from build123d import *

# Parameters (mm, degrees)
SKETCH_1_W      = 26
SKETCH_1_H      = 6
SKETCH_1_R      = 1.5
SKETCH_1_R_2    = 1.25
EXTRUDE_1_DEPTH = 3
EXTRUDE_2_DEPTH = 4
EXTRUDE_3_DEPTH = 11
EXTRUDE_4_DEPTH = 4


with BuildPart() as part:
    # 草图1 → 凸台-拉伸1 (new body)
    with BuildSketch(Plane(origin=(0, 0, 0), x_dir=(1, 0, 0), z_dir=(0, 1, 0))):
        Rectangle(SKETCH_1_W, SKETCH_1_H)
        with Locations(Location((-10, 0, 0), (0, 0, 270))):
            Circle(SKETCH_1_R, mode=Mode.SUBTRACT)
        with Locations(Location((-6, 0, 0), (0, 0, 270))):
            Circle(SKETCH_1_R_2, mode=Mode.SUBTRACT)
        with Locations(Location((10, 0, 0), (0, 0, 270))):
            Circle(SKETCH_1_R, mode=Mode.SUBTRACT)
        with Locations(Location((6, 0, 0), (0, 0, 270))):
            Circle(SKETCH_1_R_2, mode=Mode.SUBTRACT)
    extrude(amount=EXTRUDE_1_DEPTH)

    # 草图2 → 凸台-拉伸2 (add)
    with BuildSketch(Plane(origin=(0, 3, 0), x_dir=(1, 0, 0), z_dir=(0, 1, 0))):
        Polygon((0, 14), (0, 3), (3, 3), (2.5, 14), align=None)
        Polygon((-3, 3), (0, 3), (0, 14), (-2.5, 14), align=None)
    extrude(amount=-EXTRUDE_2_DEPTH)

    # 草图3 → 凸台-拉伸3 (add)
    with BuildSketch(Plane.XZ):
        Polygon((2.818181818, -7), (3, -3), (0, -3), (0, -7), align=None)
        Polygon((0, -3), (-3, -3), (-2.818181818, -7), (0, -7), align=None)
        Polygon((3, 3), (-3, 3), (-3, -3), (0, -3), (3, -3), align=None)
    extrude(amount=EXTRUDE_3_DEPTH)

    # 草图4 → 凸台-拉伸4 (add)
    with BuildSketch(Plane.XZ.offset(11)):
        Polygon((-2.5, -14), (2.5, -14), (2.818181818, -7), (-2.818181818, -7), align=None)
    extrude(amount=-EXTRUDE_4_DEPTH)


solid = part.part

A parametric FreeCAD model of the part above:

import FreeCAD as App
import Part
import Sketcher

doc = App.newDocument("Part")
body = doc.addObject("PartDesign::Body", "Body")

sketch1 = body.newObject("Sketcher::SketchObject", "Sketch")
sketch1.AttachmentSupport = (doc.getObject("XZ_Plane"), [""])
sketch1.MapMode = "FlatFace"
sketch1.addGeometry(Part.LineSegment(App.Vector(-13, -3, 0), App.Vector(-13, 3, 0)), False)
sketch1.addGeometry(Part.LineSegment(App.Vector(-13, 3, 0), App.Vector(13, 3, 0)), False)
sketch1.addGeometry(Part.LineSegment(App.Vector(13, 3, 0), App.Vector(13, -3, 0)), False)
sketch1.addGeometry(Part.LineSegment(App.Vector(13, -3, 0), App.Vector(-13, -3, 0)), False)
sketch1.addGeometry(Part.Circle(App.Vector(-10, 0, 0), App.Vector(0, 0, 1), 1.5), False)
sketch1.addGeometry(Part.Circle(App.Vector(-6, 0, 0), App.Vector(0, 0, 1), 1.2), False)
sketch1.addGeometry(Part.Circle(App.Vector(6, 0, 0), App.Vector(0, 0, 1), 1.2), False)
sketch1.addGeometry(Part.Circle(App.Vector(10, 0, 0), App.Vector(0, 0, 1), 1.5), False)
sketch1.addConstraint(Sketcher.Constraint("Coincident", 0, 2, 1, 1))
sketch1.addConstraint(Sketcher.Constraint("Coincident", 1, 2, 2, 1))
sketch1.addConstraint(Sketcher.Constraint("Coincident", 2, 2, 3, 1))
sketch1.addConstraint(Sketcher.Constraint("Coincident", 3, 2, 0, 1))
sketch1.addConstraint(Sketcher.Constraint("Vertical", 0))
sketch1.addConstraint(Sketcher.Constraint("Horizontal", 1))
sketch1.addConstraint(Sketcher.Constraint("Vertical", 2))
sketch1.addConstraint(Sketcher.Constraint("Horizontal", 3))
sketch1.addConstraint(Sketcher.Constraint("Equal", 5, 6))
sketch1.addConstraint(Sketcher.Constraint("Equal", 4, 7))
sketch1.addConstraint(Sketcher.Constraint("Symmetric", 5, 3, 6, 3, -1, 1))
sketch1.addConstraint(Sketcher.Constraint("Symmetric", 4, 3, 7, 3, -1, 1))
sketch1.addConstraint(Sketcher.Constraint("Symmetric", 0, 2, 2, 2, -1, 1))
sketch1.addConstraint(Sketcher.Constraint("PointOnObject", 4, 3, -1))
sketch1.addConstraint(Sketcher.Constraint("PointOnObject", 5, 3, -1))
sketch1.addConstraint(Sketcher.Constraint("Diameter", 4, 3.0))
sketch1.addConstraint(Sketcher.Constraint("Diameter", 5, 2.5))
sketch1.addConstraint(Sketcher.Constraint("DistanceX", 1, 1, 1, 2, 26.0))
sketch1.addConstraint(Sketcher.Constraint("DistanceY", 0, 1, 0, 2, 6.0))
sketch1.addConstraint(Sketcher.Constraint("DistanceX", 4, 3, -1, 1, 10.0))
sketch1.addConstraint(Sketcher.Constraint("DistanceX", 5, 3, -1, 1, 6.0))
pad1 = body.newObject("PartDesign::Pad", "Pad")
pad1.Profile = sketch1
pad1.Length = 3
pad1.Reversed = True

sketch2 = body.newObject("Sketcher::SketchObject", "Sketch001")
sketch2.AttachmentSupport = (doc.getObject("XZ_Plane"), [""])
sketch2.MapMode = "FlatFace"
sketch2.AttachmentOffset = App.Placement(App.Vector(0, 0, -3), App.Rotation())
sketch2.addGeometry(Part.LineSegment(App.Vector(3, -3, 0), App.Vector(2, -14, 0)), False)
sketch2.addGeometry(Part.LineSegment(App.Vector(2, -14, 0), App.Vector(-2, -14, 0)), False)
sketch2.addGeometry(Part.LineSegment(App.Vector(-2, -14, 0), App.Vector(-3, -3, 0)), False)
sketch2.addGeometry(Part.LineSegment(App.Vector(-3, -3, 0), App.Vector(3, -3, 0)), False)
sketch2.addConstraint(Sketcher.Constraint("Coincident", 0, 2, 1, 1))
sketch2.addConstraint(Sketcher.Constraint("Coincident", 1, 2, 2, 1))
sketch2.addConstraint(Sketcher.Constraint("Coincident", 2, 2, 3, 1))
sketch2.addConstraint(Sketcher.Constraint("Coincident", 3, 2, 0, 1))
sketch2.addConstraint(Sketcher.Constraint("Horizontal", 1))
sketch2.addConstraint(Sketcher.Constraint("Horizontal", 3))
sketch2.addConstraint(Sketcher.Constraint("Equal", 0, 2))
sketch2.addConstraint(Sketcher.Constraint("DistanceX", 1, 2, 1, 1, 5.0))
sketch2.addConstraint(Sketcher.Constraint("DistanceX", 3, 1, 3, 2, 6.0))
sketch2.addConstraint(Sketcher.Constraint("DistanceY", 0, 2, -1, 1, 14.0))
sketch2.addConstraint(Sketcher.Constraint("DistanceX", 2, 2, -1, 1, 3.0))
sketch2.addConstraint(Sketcher.Constraint("DistanceY", 2, 2, -1, 1, 3.0))
pad2 = body.newObject("PartDesign::Pad", "Pad001")
pad2.Profile = sketch2
pad2.Length = 4

sketch3 = body.newObject("Sketcher::SketchObject", "Sketch002")
sketch3.AttachmentSupport = (doc.getObject("XZ_Plane"), [""])
sketch3.MapMode = "FlatFace"
sketch3.addGeometry(Part.LineSegment(App.Vector(2.8, -7, 0), App.Vector(3, -3, 0)), False)
sketch3.addGeometry(Part.LineSegment(App.Vector(3, -3, 0), App.Vector(3, 3, 0)), False)
sketch3.addGeometry(Part.LineSegment(App.Vector(3, 3, 0), App.Vector(-3, 3, 0)), False)
sketch3.addGeometry(Part.LineSegment(App.Vector(-3, 3, 0), App.Vector(-3, -3, 0)), False)
sketch3.addGeometry(Part.LineSegment(App.Vector(-3, -3, 0), App.Vector(-2.8, -7, 0)), False)
sketch3.addGeometry(Part.LineSegment(App.Vector(-2.8, -7, 0), App.Vector(2.8, -7, 0)), False)
sketch3.addConstraint(Sketcher.Constraint("Coincident", 0, 2, 1, 1))
sketch3.addConstraint(Sketcher.Constraint("Coincident", 1, 2, 2, 1))
sketch3.addConstraint(Sketcher.Constraint("Coincident", 2, 2, 3, 1))
sketch3.addConstraint(Sketcher.Constraint("Coincident", 3, 2, 4, 1))
sketch3.addConstraint(Sketcher.Constraint("Coincident", 4, 2, 5, 1))
sketch3.addConstraint(Sketcher.Constraint("Coincident", 5, 2, 0, 1))
sketch3.addConstraint(Sketcher.Constraint("Vertical", 1))
sketch3.addConstraint(Sketcher.Constraint("Horizontal", 2))
sketch3.addConstraint(Sketcher.Constraint("Vertical", 3))
sketch3.addConstraint(Sketcher.Constraint("Horizontal", 5))
sketch3.addConstraint(Sketcher.Constraint("Symmetric", 0, 2, 2, 2, -1, 1))
sketch3.addConstraint(Sketcher.Constraint("Horizontal", 0, 2, 3, 2))
sketch3.addConstraint(Sketcher.Constraint("Equal", 2, 1))
sketch3.addConstraint(Sketcher.Constraint("Equal", 0, 4))
sketch3.addConstraint(Sketcher.Constraint("DistanceX", 2, 2, 2, 1, 6.0))
sketch3.addConstraint(Sketcher.Constraint("DistanceY", 4, 2, -1, 1, 7.0))
sketch3.addConstraint(Sketcher.Constraint("Distance", 0, 4.00413))
pad3 = body.newObject("PartDesign::Pad", "Pad002")
pad3.Profile = sketch3
pad3.Length = 11

sketch4 = body.newObject("Sketcher::SketchObject", "Sketch003")
sketch4.AttachmentSupport = (doc.getObject("XZ_Plane"), [""])
sketch4.MapMode = "FlatFace"
sketch4.AttachmentOffset = App.Placement(App.Vector(0, 0, 11), App.Rotation())
sketch4.addGeometry(Part.LineSegment(App.Vector(-2, -14, 0), App.Vector(2, -14, 0)), False)
sketch4.addGeometry(Part.LineSegment(App.Vector(2, -14, 0), App.Vector(3, -7, 0)), False)
sketch4.addGeometry(Part.LineSegment(App.Vector(3, -7, 0), App.Vector(-3, -7, 0)), False)
sketch4.addGeometry(Part.LineSegment(App.Vector(-3, -7, 0), App.Vector(-2, -14, 0)), False)
sketch4.addConstraint(Sketcher.Constraint("Coincident", 0, 2, 1, 1))
sketch4.addConstraint(Sketcher.Constraint("Coincident", 1, 2, 2, 1))
sketch4.addConstraint(Sketcher.Constraint("Coincident", 2, 2, 3, 1))
sketch4.addConstraint(Sketcher.Constraint("Coincident", 3, 2, 0, 1))
sketch4.addConstraint(Sketcher.Constraint("Horizontal", 0))
sketch4.addConstraint(Sketcher.Constraint("Horizontal", 2))
sketch4.addConstraint(Sketcher.Constraint("Equal", 1, 3))
sketch4.addConstraint(Sketcher.Constraint("DistanceX", 0, 1, 0, 2, 5.0))
sketch4.addConstraint(Sketcher.Constraint("DistanceY", 0, 2, -1, 1, 14.0))
sketch4.addConstraint(Sketcher.Constraint("DistanceY", 1, 2, -1, 1, 7.0))
sketch4.addConstraint(Sketcher.Constraint("DistanceX", -1, 1, 0, 2, 2.5))
sketch4.addConstraint(Sketcher.Constraint("DistanceX", 2, 2, 2, 1, 5.636364))
pad4 = body.newObject("PartDesign::Pad", "Pad003")
pad4.Profile = sketch4
pad4.Length = 4
pad4.Reversed = True

doc.recompute()
